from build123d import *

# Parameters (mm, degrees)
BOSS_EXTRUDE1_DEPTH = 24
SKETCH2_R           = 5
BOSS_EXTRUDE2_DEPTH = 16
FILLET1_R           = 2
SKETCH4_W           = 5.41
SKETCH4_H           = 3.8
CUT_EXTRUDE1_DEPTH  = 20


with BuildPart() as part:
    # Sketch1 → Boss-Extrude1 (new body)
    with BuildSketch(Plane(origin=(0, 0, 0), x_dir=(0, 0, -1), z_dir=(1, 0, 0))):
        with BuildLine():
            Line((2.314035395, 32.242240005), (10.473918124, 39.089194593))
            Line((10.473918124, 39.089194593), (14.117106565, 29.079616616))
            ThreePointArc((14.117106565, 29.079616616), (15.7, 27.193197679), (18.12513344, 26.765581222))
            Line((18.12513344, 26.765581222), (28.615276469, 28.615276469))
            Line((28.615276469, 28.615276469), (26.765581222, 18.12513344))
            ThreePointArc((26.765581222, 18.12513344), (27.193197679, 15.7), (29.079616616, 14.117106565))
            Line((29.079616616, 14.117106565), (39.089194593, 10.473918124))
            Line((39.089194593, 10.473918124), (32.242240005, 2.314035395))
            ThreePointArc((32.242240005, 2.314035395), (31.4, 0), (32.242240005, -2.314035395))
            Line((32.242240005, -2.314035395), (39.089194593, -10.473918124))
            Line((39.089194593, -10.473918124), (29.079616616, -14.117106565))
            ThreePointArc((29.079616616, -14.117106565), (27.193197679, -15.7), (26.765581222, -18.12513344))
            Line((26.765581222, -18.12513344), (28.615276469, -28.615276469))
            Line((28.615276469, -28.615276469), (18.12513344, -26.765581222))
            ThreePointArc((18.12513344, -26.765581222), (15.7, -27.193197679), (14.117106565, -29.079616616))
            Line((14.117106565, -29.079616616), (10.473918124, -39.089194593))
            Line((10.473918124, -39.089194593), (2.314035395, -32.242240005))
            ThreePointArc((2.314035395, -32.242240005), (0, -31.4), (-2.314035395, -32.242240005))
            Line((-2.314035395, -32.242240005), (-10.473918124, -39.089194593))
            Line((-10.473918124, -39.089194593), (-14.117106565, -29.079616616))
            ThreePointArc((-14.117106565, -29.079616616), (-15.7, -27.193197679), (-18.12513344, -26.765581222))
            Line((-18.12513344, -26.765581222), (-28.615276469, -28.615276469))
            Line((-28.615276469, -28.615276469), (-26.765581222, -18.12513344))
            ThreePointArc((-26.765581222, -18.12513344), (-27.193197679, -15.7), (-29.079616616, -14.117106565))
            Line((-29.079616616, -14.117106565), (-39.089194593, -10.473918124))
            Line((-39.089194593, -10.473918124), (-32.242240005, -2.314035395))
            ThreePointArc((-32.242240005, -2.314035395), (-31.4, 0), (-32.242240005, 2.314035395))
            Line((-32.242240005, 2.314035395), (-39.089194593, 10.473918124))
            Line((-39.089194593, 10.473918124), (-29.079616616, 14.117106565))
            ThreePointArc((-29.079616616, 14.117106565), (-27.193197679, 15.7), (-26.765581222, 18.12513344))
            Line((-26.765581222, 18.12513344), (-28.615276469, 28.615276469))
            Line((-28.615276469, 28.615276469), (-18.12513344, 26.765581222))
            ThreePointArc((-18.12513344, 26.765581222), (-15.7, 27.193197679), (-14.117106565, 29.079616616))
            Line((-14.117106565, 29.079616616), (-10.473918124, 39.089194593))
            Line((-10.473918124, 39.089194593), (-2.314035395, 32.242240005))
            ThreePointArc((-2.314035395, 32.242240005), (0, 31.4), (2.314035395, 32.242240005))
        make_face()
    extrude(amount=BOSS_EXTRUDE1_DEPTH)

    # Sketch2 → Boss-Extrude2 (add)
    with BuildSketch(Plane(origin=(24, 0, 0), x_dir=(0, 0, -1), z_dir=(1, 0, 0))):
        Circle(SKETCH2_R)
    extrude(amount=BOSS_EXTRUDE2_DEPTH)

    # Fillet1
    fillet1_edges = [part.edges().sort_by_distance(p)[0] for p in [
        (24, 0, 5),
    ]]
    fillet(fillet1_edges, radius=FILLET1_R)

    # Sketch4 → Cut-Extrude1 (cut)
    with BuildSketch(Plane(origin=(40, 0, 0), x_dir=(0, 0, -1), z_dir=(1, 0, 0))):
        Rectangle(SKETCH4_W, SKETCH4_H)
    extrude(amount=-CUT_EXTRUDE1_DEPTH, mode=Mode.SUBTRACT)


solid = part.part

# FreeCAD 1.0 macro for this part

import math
import FreeCAD as App
import Part
import Sketcher
from FreeCAD import Vector
Q = App.Units.Quantity


def edges_at(feature, points):
    """Names of the edges that pass closest to the given points."""
    edges = feature.Shape.Edges
    near = lambda p: min(range(len(edges)), key=lambda i: edges[i].distToShape(Part.Vertex(*p))[0])
    return sorted({f"Edge{near(p) + 1}" for p in points})

doc = App.newDocument("Part")
params = doc.addObject("Spreadsheet::Sheet", "Params")
for row, (alias, value) in enumerate([
    ("sketch1_radius", "3.6 mm"),
    ("pad1_length", "24 mm"),
    ("sketch2_diameter", "10 mm"),
    ("pad2_length", "16 mm"),
    ("fillet_radius", "2 mm"),
    ("sketch3_width", "3.8 mm"),
    ("sketch3_height", "5.41 mm"),
    ("pocket1_length", "20 mm"),
], start=1):
    params.set(f"A{row}", alias)
    params.set(f"B{row}", "=" + value)
    params.setAlias(f"B{row}", alias)

body = doc.addObject("PartDesign::Body", "Body")

# Sketch on YZ plane
sketch1 = body.newObject("Sketcher::SketchObject", "Sketch")
sketch1.AttachmentSupport = (doc.getObject("YZ_Plane"), [""])
sketch1.MapMode = "FlatFace"
sketch1.addGeometry([
    Part.LineSegment(Vector(39.1, -10.5, 0), Vector(32.2, -2.3, 0)),  # 0
    Part.ArcOfCircle(Part.Circle(Vector(35, 0, 0), Vector(0, 0, 1), 3.6), math.radians(140), math.radians(220)),  # 1
    Part.LineSegment(Vector(32.2, 2.3, 0), Vector(39.1, 10.5, 0)),  # 2
    Part.LineSegment(Vector(39.1, 10.5, 0), Vector(29.1, 14.1, 0)),  # 3
    Part.ArcOfCircle(Part.Circle(Vector(30.3, 17.5, 0), Vector(0, 0, 1), 3.6), math.radians(170), math.radians(250)),  # 4
    Part.LineSegment(Vector(26.8, 18.1, 0), Vector(28.6, 28.6, 0)),  # 5
    Part.LineSegment(Vector(28.6, 28.6, 0), Vector(18.1, 26.8, 0)),  # 6
    Part.ArcOfCircle(Part.Circle(Vector(17.5, 30.3, 0), Vector(0, 0, 1), 3.6), math.radians(-160), math.radians(-80)),  # 7
    Part.LineSegment(Vector(14.1, 29.1, 0), Vector(10.5, 39.1, 0)),  # 8
    Part.LineSegment(Vector(10.5, 39.1, 0), Vector(2.3, 32.2, 0)),  # 9
    Part.ArcOfCircle(Part.Circle(Vector(0, 35, 0), Vector(0, 0, 1), 3.6), math.radians(-130), math.radians(-50)),  # 10
    Part.LineSegment(Vector(-2.3, 32.2, 0), Vector(-10.5, 39.1, 0)),  # 11
    Part.LineSegment(Vector(-10.5, 39.1, 0), Vector(-14.1, 29.1, 0)),  # 12
    Part.ArcOfCircle(Part.Circle(Vector(-17.5, 30.3, 0), Vector(0, 0, 1), 3.6), math.radians(-100), math.radians(-20)),  # 13
    Part.LineSegment(Vector(-18.1, 26.8, 0), Vector(-28.6, 28.6, 0)),  # 14
    Part.LineSegment(Vector(-28.6, 28.6, 0), Vector(-26.8, 18.1, 0)),  # 15
    Part.ArcOfCircle(Part.Circle(Vector(-30.3, 17.5, 0), Vector(0, 0, 1), 3.6), math.radians(-70), math.radians(10)),  # 16
    Part.LineSegment(Vector(-29.1, 14.1, 0), Vector(-39.1, 10.5, 0)),  # 17
    Part.LineSegment(Vector(-39.1, 10.5, 0), Vector(-32.2, 2.3, 0)),  # 18
    Part.ArcOfCircle(Part.Circle(Vector(-35, 0, 0), Vector(0, 0, 1), 3.6), math.radians(-40), math.radians(40)),  # 19
    Part.LineSegment(Vector(-32.2, -2.3, 0), Vector(-39.1, -10.5, 0)),  # 20
    Part.LineSegment(Vector(-39.1, -10.5, 0), Vector(-29.1, -14.1, 0)),  # 21
    Part.ArcOfCircle(Part.Circle(Vector(-30.3, -17.5, 0), Vector(0, 0, 1), 3.6), math.radians(-10), math.radians(70)),  # 22
    Part.LineSegment(Vector(-26.8, -18.1, 0), Vector(-28.6, -28.6, 0)),  # 23
    Part.LineSegment(Vector(-28.6, -28.6, 0), Vector(-18.1, -26.8, 0)),  # 24
    Part.ArcOfCircle(Part.Circle(Vector(-17.5, -30.3, 0), Vector(0, 0, 1), 3.6), math.radians(20), math.radians(100)),  # 25
    Part.LineSegment(Vector(-14.1, -29.1, 0), Vector(-10.5, -39.1, 0)),  # 26
    Part.LineSegment(Vector(-10.5, -39.1, 0), Vector(-2.3, -32.2, 0)),  # 27
    Part.ArcOfCircle(Part.Circle(Vector(0, -35, 0), Vector(0, 0, 1), 3.6), math.radians(50), math.radians(130)),  # 28
    Part.LineSegment(Vector(2.3, -32.2, 0), Vector(10.5, -39.1, 0)),  # 29
    Part.LineSegment(Vector(10.5, -39.1, 0), Vector(14.1, -29.1, 0)),  # 30
    Part.ArcOfCircle(Part.Circle(Vector(17.5, -30.3, 0), Vector(0, 0, 1), 3.6), math.radians(80), math.radians(160)),  # 31
    Part.LineSegment(Vector(18.1, -26.8, 0), Vector(28.6, -28.6, 0)),  # 32
    Part.LineSegment(Vector(28.6, -28.6, 0), Vector(26.8, -18.1, 0)),  # 33
    Part.ArcOfCircle(Part.Circle(Vector(30.3, -17.5, 0), Vector(0, 0, 1), 3.6), math.radians(110), math.radians(190)),  # 34
    Part.LineSegment(Vector(29.1, -14.1, 0), Vector(39.1, -10.5, 0)),  # 35
], False)
sketch1.addConstraint([
    Sketcher.Constraint("Tangent", 0, 2, 1, 2),
    Sketcher.Constraint("Tangent", 1, 1, 2, 1),
    Sketcher.Constraint("Coincident", 2, 2, 3, 1),
    Sketcher.Constraint("Tangent", 3, 2, 4, 2),
    Sketcher.Constraint("Tangent", 4, 1, 5, 1),
    Sketcher.Constraint("Coincident", 5, 2, 6, 1),
    Sketcher.Constraint("Tangent", 6, 2, 7, 2),
    Sketcher.Constraint("Tangent", 7, 1, 8, 1),
    Sketcher.Constraint("Coincident", 8, 2, 9, 1),
    Sketcher.Constraint("Tangent", 9, 2, 10, 2),
    Sketcher.Constraint("Tangent", 10, 1, 11, 1),
    Sketcher.Constraint("Coincident", 11, 2, 12, 1),
    Sketcher.Constraint("Tangent", 12, 2, 13, 2),
    Sketcher.Constraint("Tangent", 13, 1, 14, 1),
    Sketcher.Constraint("Coincident", 14, 2, 15, 1),
    Sketcher.Constraint("Tangent", 15, 2, 16, 2),
    Sketcher.Constraint("Tangent", 16, 1, 17, 1),
    Sketcher.Constraint("Coincident", 17, 2, 18, 1),
    Sketcher.Constraint("Tangent", 18, 2, 19, 2),
    Sketcher.Constraint("Tangent", 19, 1, 20, 1),
    Sketcher.Constraint("Coincident", 20, 2, 21, 1),
    Sketcher.Constraint("Tangent", 21, 2, 22, 2),
    Sketcher.Constraint("Tangent", 22, 1, 23, 1),
    Sketcher.Constraint("Coincident", 23, 2, 24, 1),
    Sketcher.Constraint("Tangent", 24, 2, 25, 2),
    Sketcher.Constraint("Tangent", 25, 1, 26, 1),
    Sketcher.Constraint("Coincident", 26, 2, 27, 1),
    Sketcher.Constraint("Tangent", 27, 2, 28, 2),
    Sketcher.Constraint("Tangent", 28, 1, 29, 1),
    Sketcher.Constraint("Coincident", 29, 2, 30, 1),
    Sketcher.Constraint("Tangent", 30, 2, 31, 2),
    Sketcher.Constraint("Tangent", 31, 1, 32, 1),
    Sketcher.Constraint("Coincident", 32, 2, 33, 1),
    Sketcher.Constraint("Tangent", 33, 2, 34, 2),
    Sketcher.Constraint("Tangent", 34, 1, 35, 1),
    Sketcher.Constraint("Coincident", 35, 2, 0, 1),
    Sketcher.Constraint("Equal", 1, 4),
    Sketcher.Constraint("Equal", 4, 7),
    Sketcher.Constraint("Equal", 7, 10),
    Sketcher.Constraint("Equal", 10, 13),
    Sketcher.Constraint("Equal", 13, 16),
    Sketcher.Constraint("Equal", 16, 19),
    Sketcher.Constraint("Equal", 19, 22),
    Sketcher.Constraint("Equal", 22, 25),
    Sketcher.Constraint("Equal", 25, 28),
    Sketcher.Constraint("Equal", 28, 31),
    Sketcher.Constraint("Equal", 31, 34),
    Sketcher.Constraint("Symmetric", 1, 3, 19, 3, -1, 1),
    Sketcher.Constraint("Symmetric", 4, 3, 22, 3, -1, 1),
    Sketcher.Constraint("Symmetric", 7, 3, 25, 3, -1, 1),
    Sketcher.Constraint("Symmetric", 10, 3, 28, 3, -1, 1),
    Sketcher.Constraint("Symmetric", 13, 3, 31, 3, -1, 1),
    Sketcher.Constraint("Symmetric", 16, 3, 34, 3, -1, 1),
    Sketcher.Constraint("Symmetric", 2, 2, 20, 2, -1, 1),
    Sketcher.Constraint("Symmetric", 5, 2, 23, 2, -1, 1),
    Sketcher.Constraint("Symmetric", 8, 2, 26, 2, -1, 1),
    Sketcher.Constraint("Symmetric", 11, 2, 29, 2, -1, 1),
    Sketcher.Constraint("Symmetric", 14, 2, 32, 2, -1, 1),
    Sketcher.Constraint("Symmetric", 17, 2, 35, 2, -1, 1),
    Sketcher.Constraint("Symmetric", 7, 3, 13, 3, -2),
    Sketcher.Constraint("Symmetric", 4, 3, 16, 3, -2),
    Sketcher.Constraint("Symmetric", 9, 2, 10, 1, -2),
    Sketcher.Constraint("Symmetric", 5, 2, 14, 2, -2),
    Sketcher.Constraint("Symmetric", 2, 2, 17, 2, -2),
    Sketcher.Constraint("PointOnObject", 1, 3, -1),
    Sketcher.Constraint("Perpendicular", 0, 9),
    Sketcher.Constraint("Perpendicular", 3, 12),
    Sketcher.Constraint("Perpendicular", 5, 14),
    Sketcher.Constraint("Perpendicular", 8, 17),
    Sketcher.Constraint("Equal", 2, 3),
    Sketcher.Constraint("Equal", 3, 5),
    Sketcher.Constraint("Equal", 5, 6),
    Sketcher.Constraint("Equal", 6, 8),
    Sketcher.Constraint("Equal", 8, 9),
    Sketcher.Constraint("Radius", 1, 3.6),
    Sketcher.Constraint("Angle", 0, Q("130 deg")),
    Sketcher.Constraint("Angle", 3, Q("160 deg")),
    Sketcher.Constraint("Angle", 5, Q("80 deg")),
    Sketcher.Constraint("DistanceX", -1, 1, 1, 3, 35.0),
])
sketch1.setExpression("Constraints[74]", "Params.sketch1_radius")
pad1 = body.newObject("PartDesign::Pad", "Pad")
pad1.Profile = sketch1
pad1.setExpression("Length", "Params.pad1_length")

# Sketch on YZ plane
sketch2 = body.newObject("Sketcher::SketchObject", "Sketch001")
sketch2.AttachmentSupport = (doc.getObject("YZ_Plane"), [""])
sketch2.MapMode = "FlatFace"
sketch2.AttachmentOffset = App.Placement(Vector(0, 0, 24), App.Rotation())
sketch2.addGeometry(Part.Circle(Vector(0, 0, 0), Vector(0, 0, 1), 5), False)
sketch2.addConstraint([
    Sketcher.Constraint("Coincident", 0, 3, -1, 1),
    Sketcher.Constraint("Diameter", 0, 10.0),
])
sketch2.setExpression("Constraints[1]", "Params.sketch2_diameter")
pad2 = body.newObject("PartDesign::Pad", "Pad001")
pad2.Profile = sketch2
pad2.setExpression("Length", "Params.pad2_length")
doc.recompute()

fillet = body.newObject("PartDesign::Fillet", "Fillet")
fillet.Base = (pad2, edges_at(pad2, [(24, 0, 5)]))
fillet.setExpression("Radius", "Params.fillet_radius")

# Sketch on YZ plane
sketch3 = body.newObject("Sketcher::SketchObject", "Sketch002")
sketch3.AttachmentSupport = (doc.getObject("YZ_Plane"), [""])
sketch3.MapMode = "FlatFace"
sketch3.AttachmentOffset = App.Placement(Vector(0, 0, 40), App.Rotation())
sketch3.addGeometry([
    Part.LineSegment(Vector(1.9, 2.7, 0), Vector(-1.9, 2.7, 0)),
    Part.LineSegment(Vector(-1.9, 2.7, 0), Vector(-1.9, -2.7, 0)),
    Part.LineSegment(Vector(-1.9, -2.7, 0), Vector(1.9, -2.7, 0)),
    Part.LineSegment(Vector(1.9, -2.7, 0), Vector(1.9, 2.7, 0)),
], False)
sketch3.addConstraint([
    Sketcher.Constraint("Coincident", 0, 2, 1, 1),
    Sketcher.Constraint("Coincident", 1, 2, 2, 1),
    Sketcher.Constraint("Coincident", 2, 2, 3, 1),
    Sketcher.Constraint("Coincident", 3, 2, 0, 1),
    Sketcher.Constraint("Horizontal", 0),
    Sketcher.Constraint("Vertical", 1),
    Sketcher.Constraint("Horizontal", 2),
    Sketcher.Constraint("Vertical", 3),
    Sketcher.Constraint("Symmetric", 0, 2, 2, 2, -1, 1),
    Sketcher.Constraint("DistanceX", 0, 2, 0, 1, 3.8),
    Sketcher.Constraint("DistanceY", 1, 2, 1, 1, 5.41),
])
sketch3.setExpression("Constraints[9]", "Params.sketch3_width")
sketch3.setExpression("Constraints[10]", "Params.sketch3_height")
pocket1 = body.newObject("PartDesign::Pocket", "Pocket")
pocket1.Profile = sketch3
pocket1.setExpression("Length", "Params.pocket1_length")

doc.recompute()
